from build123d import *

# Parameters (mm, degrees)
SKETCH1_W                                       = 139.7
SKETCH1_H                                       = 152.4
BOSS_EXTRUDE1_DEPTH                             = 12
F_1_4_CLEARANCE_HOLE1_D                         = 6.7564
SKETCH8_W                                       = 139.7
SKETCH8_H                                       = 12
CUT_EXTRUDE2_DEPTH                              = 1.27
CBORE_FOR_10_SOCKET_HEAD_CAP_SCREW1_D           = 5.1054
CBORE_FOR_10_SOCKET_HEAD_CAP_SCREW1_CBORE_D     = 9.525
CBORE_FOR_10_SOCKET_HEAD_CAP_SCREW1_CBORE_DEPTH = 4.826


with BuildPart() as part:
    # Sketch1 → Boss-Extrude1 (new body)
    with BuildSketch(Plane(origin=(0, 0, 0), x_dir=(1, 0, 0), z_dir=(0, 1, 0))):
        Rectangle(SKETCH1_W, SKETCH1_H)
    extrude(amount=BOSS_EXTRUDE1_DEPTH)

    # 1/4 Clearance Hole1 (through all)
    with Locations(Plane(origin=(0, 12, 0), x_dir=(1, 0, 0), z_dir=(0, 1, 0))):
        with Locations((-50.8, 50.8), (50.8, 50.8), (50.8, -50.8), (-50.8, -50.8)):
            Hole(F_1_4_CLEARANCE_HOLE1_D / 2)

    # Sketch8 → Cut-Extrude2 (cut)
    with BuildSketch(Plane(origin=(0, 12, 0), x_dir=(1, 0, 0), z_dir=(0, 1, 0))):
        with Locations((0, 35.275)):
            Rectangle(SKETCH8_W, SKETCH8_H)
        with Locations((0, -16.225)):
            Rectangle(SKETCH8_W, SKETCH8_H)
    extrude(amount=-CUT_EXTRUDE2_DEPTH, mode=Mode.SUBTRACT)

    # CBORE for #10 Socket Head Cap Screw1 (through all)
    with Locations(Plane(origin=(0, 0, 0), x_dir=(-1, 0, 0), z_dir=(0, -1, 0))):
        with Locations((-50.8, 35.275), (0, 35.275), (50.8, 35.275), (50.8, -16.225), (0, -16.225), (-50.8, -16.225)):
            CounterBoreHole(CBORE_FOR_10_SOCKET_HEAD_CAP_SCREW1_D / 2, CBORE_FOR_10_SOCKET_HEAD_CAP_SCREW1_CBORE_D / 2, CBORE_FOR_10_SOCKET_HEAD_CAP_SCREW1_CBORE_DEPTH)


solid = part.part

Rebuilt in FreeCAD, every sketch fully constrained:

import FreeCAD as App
import Part
import Sketcher

V = App.Vector
Q = App.Units.Quantity

doc = App.newDocument("Part")
body = doc.addObject("PartDesign::Body", "Body")

# Sketch on XZ plane
sketch1 = body.newObject("Sketcher::SketchObject", "Sketch")
sketch1.AttachmentSupport = (doc.getObject("XZ_Plane"), [""])
sketch1.MapMode = "FlatFace"
sketch1.addGeometry([
    Part.LineSegment(V(-70, -76, 0), V(-70, 76, 0)),
    Part.LineSegment(V(-70, 76, 0), V(70, 76, 0)),
    Part.LineSegment(V(70, 76, 0), V(70, -76, 0)),
    Part.LineSegment(V(70, -76, 0), V(-70, -76, 0)),
], False)
sketch1.addConstraint([
    Sketcher.Constraint("Coincident", 0, 2, 1, 1),
    Sketcher.Constraint("Coincident", 1, 2, 2, 1),
    Sketcher.Constraint("Coincident", 2, 2, 3, 1),
    Sketcher.Constraint("Coincident", 3, 2, 0, 1),
    Sketcher.Constraint("Vertical", 0),
    Sketcher.Constraint("Horizontal", 1),
    Sketcher.Constraint("Vertical", 2),
    Sketcher.Constraint("Horizontal", 3),
    Sketcher.Constraint("Symmetric", 0, 2, 2, 2, -1, 1),
    Sketcher.Constraint("DistanceY", 0, 1, 0, 2, Q("6 in")),
    Sketcher.Constraint("DistanceX", 1, 1, 1, 2, Q("5.5 in")),
])
pad1 = body.newObject("PartDesign::Pad", "Pad")
pad1.Profile = sketch1
pad1.Length = 12
pad1.Reversed = True

# Sketch on XZ plane
sketch2 = body.newObject("Sketcher::SketchObject", "Sketch001")
sketch2.AttachmentSupport = (doc.getObject("XZ_Plane"), [""])
sketch2.MapMode = "FlatFace"
sketch2.AttachmentOffset = App.Placement(V(0, 0, -12), App.Rotation())
sketch2.addGeometry([
    Part.Circle(V(-50.8, -50.8, 0), V(0, 0, 1), 3.4),
    Part.Circle(V(50.8, -50.8, 0), V(0, 0, 1), 3.4),
    Part.Circle(V(50.8, 50.8, 0), V(0, 0, 1), 3.4),
    Part.Circle(V(-50.8, 50.8, 0), V(0, 0, 1), 3.4),
], False)
sketch2.addConstraint([
    Sketcher.Constraint("Equal", 0, 1),
    Sketcher.Constraint("Equal", 1, 2),
    Sketcher.Constraint("Equal", 2, 3),
    Sketcher.Constraint("Symmetric", 0, 3, 2, 3, -1, 1),
    Sketcher.Constraint("Symmetric", 1, 3, 3, 3, -1, 1),
    Sketcher.Constraint("Symmetric", 0, 3, 1, 3, -2),
    Sketcher.Constraint("Diameter", 0, Q("0.266 in")),
    Sketcher.Constraint("DistanceX", 0, 3, -1, 1, Q("2 in")),
    Sketcher.Constraint("DistanceY", 0, 3, -1, 1, Q("2 in")),
])
doc.recompute()
hole = body.newObject("PartDesign::Hole", "Hole")
hole.Profile = sketch2
hole.ThreadType = "None"
hole.Diameter = Q("0.266 in")
hole.DepthType = "ThroughAll"
hole.Reversed = True

# Sketch on XZ plane
sketch3 = body.newObject("Sketcher::SketchObject", "Sketch002")
sketch3.AttachmentSupport = (doc.getObject("XZ_Plane"), [""])
sketch3.MapMode = "FlatFace"
sketch3.AttachmentOffset = App.Placement(V(0, 0, -12), App.Rotation())
sketch3.addGeometry([
    Part.LineSegment(V(-70, -41, 0), V(-70, -29, 0)),  # 0
    Part.LineSegment(V(-70, -29, 0), V(70, -29, 0)),  # 1
    Part.LineSegment(V(70, -29, 0), V(70, -41, 0)),  # 2
    Part.LineSegment(V(70, -41, 0), V(-70, -41, 0)),  # 3
    Part.LineSegment(V(-70, 10, 0), V(-70, 22, 0)),  # 4
    Part.LineSegment(V(-70, 22, 0), V(70, 22, 0)),  # 5
    Part.LineSegment(V(70, 22, 0), V(70, 10, 0)),  # 6
    Part.LineSegment(V(70, 10, 0), V(-70, 10, 0)),  # 7
], False)
sketch3.addConstraint([
    Sketcher.Constraint("Coincident", 0, 2, 1, 1),
    Sketcher.Constraint("Coincident", 1, 2, 2, 1),
    Sketcher.Constraint("Coincident", 2, 2, 3, 1),
    Sketcher.Constraint("Coincident", 3, 2, 0, 1),
    Sketcher.Constraint("Coincident", 4, 2, 5, 1),
    Sketcher.Constraint("Coincident", 5, 2, 6, 1),
    Sketcher.Constraint("Coincident", 6, 2, 7, 1),
    Sketcher.Constraint("Coincident", 7, 2, 4, 1),
    Sketcher.Constraint("Vertical", 0),
    Sketcher.Constraint("Horizontal", 1),
    Sketcher.Constraint("Vertical", 2),
    Sketcher.Constraint("Horizontal", 3),
    Sketcher.Constraint("Vertical", 4),
    Sketcher.Constraint("Horizontal", 5),
    Sketcher.Constraint("Vertical", 6),
    Sketcher.Constraint("Horizontal", 7),
    Sketcher.Constraint("Vertical", 3, 2, 4, 2),
    Sketcher.Constraint("Vertical", 2, 2, 5, 2),
    Sketcher.Constraint("Equal", 2, 4),
    Sketcher.Constraint("DistanceX", 1, 1, 1, 2, Q("5.5 in")),
    Sketcher.Constraint("DistanceY", 3, 2, 4, 2, Q("2.5 in")),
    Sketcher.Constraint("DistanceX", 0, 2, -1, 1, Q("2.75 in")),
    Sketcher.Constraint("DistanceY", 2, 2, -1, 1, Q("1.625 in")),
    Sketcher.Constraint("DistanceY", 0, 1, 0, 2, 12.0),
])
pocket1 = body.newObject("PartDesign::Pocket", "Pocket")
pocket1.Profile = sketch3
pocket1.Length = Q("0.05 in")
pocket1.Reversed = True

# Sketch on XZ plane
sketch4 = body.newObject("Sketcher::SketchObject", "Sketch003")
sketch4.AttachmentSupport = (doc.getObject("XZ_Plane"), [""])
sketch4.MapMode = "FlatFace"
sketch4.addGeometry([
    Part.Circle(V(50.8, -35.3, 0), V(0, 0, 1), 2.6),  # 0
    Part.Circle(V(0, -35.3, 0), V(0, 0, 1), 2.6),  # 1
    Part.Circle(V(-50.8, -35.3, 0), V(0, 0, 1), 2.6),  # 2
    Part.Circle(V(-50.8, 16.2, 0), V(0, 0, 1), 2.6),  # 3
    Part.Circle(V(0, 16.2, 0), V(0, 0, 1), 2.6),  # 4
    Part.Circle(V(50.8, 16.2, 0), V(0, 0, 1), 2.6),  # 5
], False)
sketch4.addConstraint([
    Sketcher.Constraint("Equal", 0, 1),
    Sketcher.Constraint("Equal", 1, 2),
    Sketcher.Constraint("Equal", 2, 3),
    Sketcher.Constraint("Equal", 3, 4),
    Sketcher.Constraint("Equal", 4, 5),
    Sketcher.Constraint("Symmetric", 0, 3, 2, 3, -2),
    Sketcher.Constraint("Symmetric", 3, 3, 5, 3, -2),
    Sketcher.Constraint("PointOnObject", 1, 3, -2),
    Sketcher.Constraint("PointOnObject", 4, 3, -2),
    Sketcher.Constraint("Horizontal", 0, 3, 1, 3),
    Sketcher.Constraint("Horizontal", 3, 3, 4, 3),
    Sketcher.Constraint("Vertical", 2, 3, 3, 3),
    Sketcher.Constraint("Diameter", 0, Q("0.201 in")),
    Sketcher.Constraint("DistanceX", -1, 1, 0, 3, Q("2 in")),
    Sketcher.Constraint("DistanceY", 0, 3, -1, 1, 35.275),
    Sketcher.Constraint("DistanceY", -1, 1, 3, 3, 16.225),
])
doc.recompute()
hole2 = body.newObject("PartDesign::Hole", "Hole001")
hole2.Profile = sketch4
hole2.ThreadType = "None"
hole2.Diameter = Q("0.201 in")
hole2.DepthType = "ThroughAll"
hole2.HoleCutType = "Counterbore"
hole2.HoleCutDiameter = Q("0.375 in")
hole2.HoleCutDepth = Q("0.19 in")

doc.recompute()
